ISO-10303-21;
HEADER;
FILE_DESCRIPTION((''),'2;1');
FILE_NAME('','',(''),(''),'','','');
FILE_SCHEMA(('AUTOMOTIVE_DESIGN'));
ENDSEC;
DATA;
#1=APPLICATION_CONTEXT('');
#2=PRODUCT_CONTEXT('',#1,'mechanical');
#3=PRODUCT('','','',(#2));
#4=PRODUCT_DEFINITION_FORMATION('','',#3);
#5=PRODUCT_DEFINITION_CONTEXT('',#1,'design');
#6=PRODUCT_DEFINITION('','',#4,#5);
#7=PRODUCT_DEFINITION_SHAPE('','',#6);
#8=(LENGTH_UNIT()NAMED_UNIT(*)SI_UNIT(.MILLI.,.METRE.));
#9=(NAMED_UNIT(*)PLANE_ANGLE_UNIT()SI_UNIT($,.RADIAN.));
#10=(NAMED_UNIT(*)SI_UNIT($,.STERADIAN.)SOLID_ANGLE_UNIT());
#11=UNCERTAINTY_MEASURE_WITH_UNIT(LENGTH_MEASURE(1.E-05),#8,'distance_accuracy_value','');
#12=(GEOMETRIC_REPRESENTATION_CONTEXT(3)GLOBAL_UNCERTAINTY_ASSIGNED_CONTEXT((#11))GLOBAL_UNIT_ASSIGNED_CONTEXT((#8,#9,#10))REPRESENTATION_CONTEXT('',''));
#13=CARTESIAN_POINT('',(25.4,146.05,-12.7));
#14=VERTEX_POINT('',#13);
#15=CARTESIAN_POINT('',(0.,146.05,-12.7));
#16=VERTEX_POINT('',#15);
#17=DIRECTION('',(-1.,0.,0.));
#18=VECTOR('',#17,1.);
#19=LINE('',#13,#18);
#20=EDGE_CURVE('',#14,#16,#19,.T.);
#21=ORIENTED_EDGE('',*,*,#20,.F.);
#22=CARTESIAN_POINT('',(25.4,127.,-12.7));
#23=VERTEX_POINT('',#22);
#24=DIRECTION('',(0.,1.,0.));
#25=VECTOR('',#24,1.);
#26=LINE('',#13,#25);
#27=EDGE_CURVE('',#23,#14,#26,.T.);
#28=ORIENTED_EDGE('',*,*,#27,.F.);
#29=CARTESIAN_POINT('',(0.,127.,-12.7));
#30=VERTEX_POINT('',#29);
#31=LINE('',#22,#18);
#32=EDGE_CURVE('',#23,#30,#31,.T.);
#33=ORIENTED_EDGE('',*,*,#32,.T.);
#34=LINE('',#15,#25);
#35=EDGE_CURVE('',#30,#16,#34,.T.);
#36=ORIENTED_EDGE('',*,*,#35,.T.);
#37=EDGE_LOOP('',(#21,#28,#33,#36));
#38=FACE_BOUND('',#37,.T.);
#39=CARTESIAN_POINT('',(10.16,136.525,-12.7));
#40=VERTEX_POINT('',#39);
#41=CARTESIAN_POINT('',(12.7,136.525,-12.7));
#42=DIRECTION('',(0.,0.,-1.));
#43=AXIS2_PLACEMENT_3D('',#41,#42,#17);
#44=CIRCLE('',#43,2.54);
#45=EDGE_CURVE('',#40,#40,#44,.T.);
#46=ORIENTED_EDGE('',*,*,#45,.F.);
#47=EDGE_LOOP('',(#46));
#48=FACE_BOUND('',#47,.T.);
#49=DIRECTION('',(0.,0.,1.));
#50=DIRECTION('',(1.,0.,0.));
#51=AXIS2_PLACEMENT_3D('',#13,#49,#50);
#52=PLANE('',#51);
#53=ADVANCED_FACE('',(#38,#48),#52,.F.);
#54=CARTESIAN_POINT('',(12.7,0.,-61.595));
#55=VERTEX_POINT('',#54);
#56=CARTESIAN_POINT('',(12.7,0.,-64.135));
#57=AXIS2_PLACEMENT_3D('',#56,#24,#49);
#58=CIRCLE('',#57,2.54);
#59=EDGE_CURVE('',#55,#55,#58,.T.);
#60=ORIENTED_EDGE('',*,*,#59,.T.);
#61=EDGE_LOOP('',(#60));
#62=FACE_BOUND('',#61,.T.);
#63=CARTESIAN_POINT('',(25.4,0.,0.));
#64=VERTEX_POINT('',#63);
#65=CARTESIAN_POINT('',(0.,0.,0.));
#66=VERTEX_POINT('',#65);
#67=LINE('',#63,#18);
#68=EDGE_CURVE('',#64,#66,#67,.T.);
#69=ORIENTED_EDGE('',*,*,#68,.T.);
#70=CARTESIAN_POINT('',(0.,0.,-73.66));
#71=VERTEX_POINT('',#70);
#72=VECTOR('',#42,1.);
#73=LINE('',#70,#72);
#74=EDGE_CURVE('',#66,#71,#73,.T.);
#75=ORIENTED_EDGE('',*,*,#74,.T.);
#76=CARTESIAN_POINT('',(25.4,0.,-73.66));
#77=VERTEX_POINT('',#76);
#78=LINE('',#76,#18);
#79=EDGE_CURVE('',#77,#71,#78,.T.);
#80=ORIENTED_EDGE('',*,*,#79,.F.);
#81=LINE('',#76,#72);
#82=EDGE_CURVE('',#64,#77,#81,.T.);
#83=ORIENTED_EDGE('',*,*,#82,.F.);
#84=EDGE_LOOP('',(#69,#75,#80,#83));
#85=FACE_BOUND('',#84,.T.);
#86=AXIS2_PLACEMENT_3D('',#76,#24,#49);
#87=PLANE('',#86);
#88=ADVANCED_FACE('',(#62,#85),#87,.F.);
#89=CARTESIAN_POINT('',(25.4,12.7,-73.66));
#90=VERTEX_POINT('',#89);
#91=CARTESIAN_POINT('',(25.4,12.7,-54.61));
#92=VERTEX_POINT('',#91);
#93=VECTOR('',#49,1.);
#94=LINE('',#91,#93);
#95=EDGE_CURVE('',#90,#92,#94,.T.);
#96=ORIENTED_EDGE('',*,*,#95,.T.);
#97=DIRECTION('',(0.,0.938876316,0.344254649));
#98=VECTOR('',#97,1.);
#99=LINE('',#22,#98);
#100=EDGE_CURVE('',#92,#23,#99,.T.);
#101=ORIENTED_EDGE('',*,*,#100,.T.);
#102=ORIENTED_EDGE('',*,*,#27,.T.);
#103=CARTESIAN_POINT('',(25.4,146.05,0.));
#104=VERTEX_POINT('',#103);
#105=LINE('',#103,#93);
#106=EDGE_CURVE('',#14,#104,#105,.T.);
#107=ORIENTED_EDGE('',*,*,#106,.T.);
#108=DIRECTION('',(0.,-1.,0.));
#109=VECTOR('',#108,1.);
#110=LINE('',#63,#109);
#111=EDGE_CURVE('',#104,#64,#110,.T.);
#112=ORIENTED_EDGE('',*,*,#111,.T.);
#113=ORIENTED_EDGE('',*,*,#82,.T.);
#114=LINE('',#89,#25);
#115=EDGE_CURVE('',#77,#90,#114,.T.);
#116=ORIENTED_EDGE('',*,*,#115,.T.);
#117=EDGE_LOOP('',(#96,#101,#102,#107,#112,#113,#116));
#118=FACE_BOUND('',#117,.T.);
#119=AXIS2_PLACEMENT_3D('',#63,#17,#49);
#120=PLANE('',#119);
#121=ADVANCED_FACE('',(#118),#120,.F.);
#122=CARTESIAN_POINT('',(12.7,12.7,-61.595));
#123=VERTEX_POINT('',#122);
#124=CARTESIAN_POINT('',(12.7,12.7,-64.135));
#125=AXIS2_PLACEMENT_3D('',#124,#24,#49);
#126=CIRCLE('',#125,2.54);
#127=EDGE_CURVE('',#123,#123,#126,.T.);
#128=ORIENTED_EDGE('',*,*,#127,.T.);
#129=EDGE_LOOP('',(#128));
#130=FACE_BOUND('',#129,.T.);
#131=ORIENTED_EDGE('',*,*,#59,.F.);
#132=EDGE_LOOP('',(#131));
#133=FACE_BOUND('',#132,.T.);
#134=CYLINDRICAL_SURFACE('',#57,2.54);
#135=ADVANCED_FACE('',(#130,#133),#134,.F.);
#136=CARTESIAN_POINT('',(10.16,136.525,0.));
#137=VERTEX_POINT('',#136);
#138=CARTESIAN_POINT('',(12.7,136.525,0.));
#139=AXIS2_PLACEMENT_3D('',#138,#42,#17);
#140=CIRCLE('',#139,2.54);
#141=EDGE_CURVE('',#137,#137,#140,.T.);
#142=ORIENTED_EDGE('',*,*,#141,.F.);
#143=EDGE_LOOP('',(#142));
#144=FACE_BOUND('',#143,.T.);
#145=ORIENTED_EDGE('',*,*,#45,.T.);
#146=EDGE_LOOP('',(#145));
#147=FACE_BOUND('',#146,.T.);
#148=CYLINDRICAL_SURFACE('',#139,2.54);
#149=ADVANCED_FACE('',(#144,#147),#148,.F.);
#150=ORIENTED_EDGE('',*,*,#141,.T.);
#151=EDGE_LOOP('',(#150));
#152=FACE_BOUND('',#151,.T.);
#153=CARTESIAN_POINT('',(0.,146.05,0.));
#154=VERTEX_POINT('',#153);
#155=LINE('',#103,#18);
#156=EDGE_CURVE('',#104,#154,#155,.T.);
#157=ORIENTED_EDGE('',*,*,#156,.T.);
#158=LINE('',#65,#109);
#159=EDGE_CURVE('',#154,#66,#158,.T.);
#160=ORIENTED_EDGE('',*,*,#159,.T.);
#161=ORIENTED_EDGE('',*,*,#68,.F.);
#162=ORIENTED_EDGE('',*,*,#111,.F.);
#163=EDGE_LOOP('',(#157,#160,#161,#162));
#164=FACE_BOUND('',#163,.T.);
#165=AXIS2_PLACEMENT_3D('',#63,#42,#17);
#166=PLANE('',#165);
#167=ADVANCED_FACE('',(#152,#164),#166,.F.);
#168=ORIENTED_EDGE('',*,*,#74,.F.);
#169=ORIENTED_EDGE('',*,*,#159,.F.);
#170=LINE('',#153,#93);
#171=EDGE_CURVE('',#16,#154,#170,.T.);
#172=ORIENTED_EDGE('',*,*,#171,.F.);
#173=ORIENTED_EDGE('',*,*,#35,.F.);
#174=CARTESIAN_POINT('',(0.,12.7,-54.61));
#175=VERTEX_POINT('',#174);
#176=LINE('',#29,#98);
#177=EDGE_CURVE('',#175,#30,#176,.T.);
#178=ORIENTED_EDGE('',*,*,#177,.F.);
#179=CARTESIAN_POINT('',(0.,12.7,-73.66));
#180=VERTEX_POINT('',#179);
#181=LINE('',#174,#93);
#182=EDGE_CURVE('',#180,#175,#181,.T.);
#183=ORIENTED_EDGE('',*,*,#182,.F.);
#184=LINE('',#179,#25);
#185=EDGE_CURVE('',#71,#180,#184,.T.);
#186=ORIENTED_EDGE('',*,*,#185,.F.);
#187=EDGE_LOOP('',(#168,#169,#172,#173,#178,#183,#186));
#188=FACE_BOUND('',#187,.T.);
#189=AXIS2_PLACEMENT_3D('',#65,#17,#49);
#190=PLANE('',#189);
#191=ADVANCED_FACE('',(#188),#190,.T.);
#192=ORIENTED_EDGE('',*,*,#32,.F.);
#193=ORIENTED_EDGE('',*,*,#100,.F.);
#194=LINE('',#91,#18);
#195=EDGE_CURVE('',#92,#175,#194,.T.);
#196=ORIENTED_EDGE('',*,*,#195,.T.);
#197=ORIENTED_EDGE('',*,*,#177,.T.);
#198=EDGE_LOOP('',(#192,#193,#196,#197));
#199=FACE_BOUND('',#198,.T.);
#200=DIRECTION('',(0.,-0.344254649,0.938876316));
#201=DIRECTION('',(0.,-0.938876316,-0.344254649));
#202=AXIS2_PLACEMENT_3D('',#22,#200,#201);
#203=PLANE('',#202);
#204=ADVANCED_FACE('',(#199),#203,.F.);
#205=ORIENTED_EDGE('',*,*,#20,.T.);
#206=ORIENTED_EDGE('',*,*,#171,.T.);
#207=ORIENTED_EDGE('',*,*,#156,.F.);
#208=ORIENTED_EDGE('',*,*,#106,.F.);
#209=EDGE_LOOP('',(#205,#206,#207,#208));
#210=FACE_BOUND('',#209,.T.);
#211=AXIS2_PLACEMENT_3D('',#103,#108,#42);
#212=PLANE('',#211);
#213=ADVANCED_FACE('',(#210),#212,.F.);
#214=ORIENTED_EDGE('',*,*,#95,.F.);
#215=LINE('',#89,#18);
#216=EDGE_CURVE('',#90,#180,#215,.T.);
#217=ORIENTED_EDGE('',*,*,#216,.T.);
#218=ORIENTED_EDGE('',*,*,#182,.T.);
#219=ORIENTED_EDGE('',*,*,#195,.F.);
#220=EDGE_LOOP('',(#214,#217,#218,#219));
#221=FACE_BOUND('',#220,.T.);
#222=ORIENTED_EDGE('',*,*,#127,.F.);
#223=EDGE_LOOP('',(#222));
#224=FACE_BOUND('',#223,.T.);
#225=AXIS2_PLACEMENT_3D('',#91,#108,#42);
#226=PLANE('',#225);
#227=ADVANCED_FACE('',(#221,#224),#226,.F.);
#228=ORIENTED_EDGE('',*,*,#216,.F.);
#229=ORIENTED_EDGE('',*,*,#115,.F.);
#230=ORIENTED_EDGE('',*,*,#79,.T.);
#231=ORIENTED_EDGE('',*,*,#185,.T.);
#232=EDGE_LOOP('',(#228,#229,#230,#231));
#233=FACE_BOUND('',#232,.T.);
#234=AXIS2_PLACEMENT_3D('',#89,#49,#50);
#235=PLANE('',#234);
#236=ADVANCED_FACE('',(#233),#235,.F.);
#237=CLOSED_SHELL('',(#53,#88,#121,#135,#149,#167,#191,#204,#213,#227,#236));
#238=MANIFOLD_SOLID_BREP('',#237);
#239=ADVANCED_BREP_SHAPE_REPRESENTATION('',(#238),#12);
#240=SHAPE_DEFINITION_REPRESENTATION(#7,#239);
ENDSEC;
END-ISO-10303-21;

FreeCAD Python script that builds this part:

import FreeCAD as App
import Part
import Sketcher
Q = App.Units.Quantity

doc = App.newDocument("Part")
body = doc.addObject("PartDesign::Body", "Body")

# Sketch on YZ plane
sketch1 = body.newObject("Sketcher::SketchObject", "Sketch")
sketch1.AttachmentSupport = (doc.getObject("YZ_Plane"), [""])
sketch1.MapMode = "FlatFace"
sketch1.addGeometry([
    Part.LineSegment(App.Vector(146, 0, 0), App.Vector(0, 0, 0)),  # 0
    Part.LineSegment(App.Vector(0, 0, 0), App.Vector(0, -74, 0)),  # 1
    Part.LineSegment(App.Vector(0, -74, 0), App.Vector(13, -74, 0)),  # 2
    Part.LineSegment(App.Vector(13, -74, 0), App.Vector(13, -55, 0)),  # 3
    Part.LineSegment(App.Vector(13, -55, 0), App.Vector(127, -13, 0)),  # 4
    Part.LineSegment(App.Vector(127, -13, 0), App.Vector(146, -13, 0)),  # 5
    Part.LineSegment(App.Vector(146, -13, 0), App.Vector(146, 0, 0)),  # 6
], False)
sketch1.addConstraint([
    Sketcher.Constraint("Coincident", 0, 2, 1, 1),
    Sketcher.Constraint("Coincident", 1, 2, 2, 1),
    Sketcher.Constraint("Coincident", 2, 2, 3, 1),
    Sketcher.Constraint("Coincident", 3, 2, 4, 1),
    Sketcher.Constraint("Coincident", 4, 2, 5, 1),
    Sketcher.Constraint("Coincident", 5, 2, 6, 1),
    Sketcher.Constraint("Coincident", 6, 2, 0, 1),
    Sketcher.Constraint("Horizontal", 0),
    Sketcher.Constraint("Vertical", 1),
    Sketcher.Constraint("Horizontal", 2),
    Sketcher.Constraint("Vertical", 3),
    Sketcher.Constraint("Horizontal", 5),
    Sketcher.Constraint("Vertical", 6),
    Sketcher.Constraint("Coincident", 0, 2, -1, 1),
    Sketcher.Constraint("Equal", 5, 3),
    Sketcher.Constraint("Equal", 2, 6),
    Sketcher.Constraint("DistanceX", 2, 1, 2, 2, Q("0.5 in")),
    Sketcher.Constraint("DistanceY", 1, 2, 1, 1, Q("2.9 in")),
    Sketcher.Constraint("DistanceX", -1, 1, 4, 2, Q("5 in")),
    Sketcher.Constraint("DistanceX", 0, 2, 0, 1, Q("5.75 in")),
])
pad1 = body.newObject("PartDesign::Pad", "Pad")
pad1.Profile = sketch1
pad1.Length = Q("1 in")

# Sketch on XY plane
sketch2 = body.newObject("Sketcher::SketchObject", "Sketch001")
sketch2.AttachmentSupport = (doc.getObject("XY_Plane"), [""])
sketch2.MapMode = "FlatFace"
sketch2.AttachmentOffset = App.Placement(App.Vector(0, 0, -0.5 * 25.4), App.Rotation())
sketch2.addGeometry(Part.Circle(App.Vector(12.7, 136.5, 0), App.Vector(0, 0, 1), 2.5), False)
sketch2.addConstraint([
    Sketcher.Constraint("Diameter", 0, Q("0.2 in")),
    Sketcher.Constraint("DistanceX", -1, 1, 0, 3, Q("0.5 in")),
    Sketcher.Constraint("DistanceY", -1, 1, 0, 3, Q("5.375 in")),
])
pocket1 = body.newObject("PartDesign::Pocket", "Pocket")
pocket1.Profile = sketch2
pocket1.Type = "ThroughAll"
pocket1.Reversed = True

# Sketch on XZ plane
sketch3 = body.newObject("Sketcher::SketchObject", "Sketch002")
sketch3.AttachmentSupport = (doc.getObject("XZ_Plane"), [""])
sketch3.MapMode = "FlatFace"
sketch3.AttachmentOffset = App.Placement(App.Vector(0, 0, -0.5 * 25.4), App.Rotation())
sketch3.addGeometry(Part.Circle(App.Vector(12.7, -64.1, 0), App.Vector(0, 0, 1), 2.5), False)
sketch3.addConstraint([
    Sketcher.Constraint("Diameter", 0, Q("0.2 in")),
    Sketcher.Constraint("DistanceX", -1, 1, 0, 3, Q("0.5 in")),
    Sketcher.Constraint("DistanceY", 0, 3, -1, 1, Q("2.525 in")),
])
pocket2 = body.newObject("PartDesign::Pocket", "Pocket001")
pocket2.Profile = sketch3
pocket2.Type = "ThroughAll"
pocket2.Reversed = True

doc.recompute()
